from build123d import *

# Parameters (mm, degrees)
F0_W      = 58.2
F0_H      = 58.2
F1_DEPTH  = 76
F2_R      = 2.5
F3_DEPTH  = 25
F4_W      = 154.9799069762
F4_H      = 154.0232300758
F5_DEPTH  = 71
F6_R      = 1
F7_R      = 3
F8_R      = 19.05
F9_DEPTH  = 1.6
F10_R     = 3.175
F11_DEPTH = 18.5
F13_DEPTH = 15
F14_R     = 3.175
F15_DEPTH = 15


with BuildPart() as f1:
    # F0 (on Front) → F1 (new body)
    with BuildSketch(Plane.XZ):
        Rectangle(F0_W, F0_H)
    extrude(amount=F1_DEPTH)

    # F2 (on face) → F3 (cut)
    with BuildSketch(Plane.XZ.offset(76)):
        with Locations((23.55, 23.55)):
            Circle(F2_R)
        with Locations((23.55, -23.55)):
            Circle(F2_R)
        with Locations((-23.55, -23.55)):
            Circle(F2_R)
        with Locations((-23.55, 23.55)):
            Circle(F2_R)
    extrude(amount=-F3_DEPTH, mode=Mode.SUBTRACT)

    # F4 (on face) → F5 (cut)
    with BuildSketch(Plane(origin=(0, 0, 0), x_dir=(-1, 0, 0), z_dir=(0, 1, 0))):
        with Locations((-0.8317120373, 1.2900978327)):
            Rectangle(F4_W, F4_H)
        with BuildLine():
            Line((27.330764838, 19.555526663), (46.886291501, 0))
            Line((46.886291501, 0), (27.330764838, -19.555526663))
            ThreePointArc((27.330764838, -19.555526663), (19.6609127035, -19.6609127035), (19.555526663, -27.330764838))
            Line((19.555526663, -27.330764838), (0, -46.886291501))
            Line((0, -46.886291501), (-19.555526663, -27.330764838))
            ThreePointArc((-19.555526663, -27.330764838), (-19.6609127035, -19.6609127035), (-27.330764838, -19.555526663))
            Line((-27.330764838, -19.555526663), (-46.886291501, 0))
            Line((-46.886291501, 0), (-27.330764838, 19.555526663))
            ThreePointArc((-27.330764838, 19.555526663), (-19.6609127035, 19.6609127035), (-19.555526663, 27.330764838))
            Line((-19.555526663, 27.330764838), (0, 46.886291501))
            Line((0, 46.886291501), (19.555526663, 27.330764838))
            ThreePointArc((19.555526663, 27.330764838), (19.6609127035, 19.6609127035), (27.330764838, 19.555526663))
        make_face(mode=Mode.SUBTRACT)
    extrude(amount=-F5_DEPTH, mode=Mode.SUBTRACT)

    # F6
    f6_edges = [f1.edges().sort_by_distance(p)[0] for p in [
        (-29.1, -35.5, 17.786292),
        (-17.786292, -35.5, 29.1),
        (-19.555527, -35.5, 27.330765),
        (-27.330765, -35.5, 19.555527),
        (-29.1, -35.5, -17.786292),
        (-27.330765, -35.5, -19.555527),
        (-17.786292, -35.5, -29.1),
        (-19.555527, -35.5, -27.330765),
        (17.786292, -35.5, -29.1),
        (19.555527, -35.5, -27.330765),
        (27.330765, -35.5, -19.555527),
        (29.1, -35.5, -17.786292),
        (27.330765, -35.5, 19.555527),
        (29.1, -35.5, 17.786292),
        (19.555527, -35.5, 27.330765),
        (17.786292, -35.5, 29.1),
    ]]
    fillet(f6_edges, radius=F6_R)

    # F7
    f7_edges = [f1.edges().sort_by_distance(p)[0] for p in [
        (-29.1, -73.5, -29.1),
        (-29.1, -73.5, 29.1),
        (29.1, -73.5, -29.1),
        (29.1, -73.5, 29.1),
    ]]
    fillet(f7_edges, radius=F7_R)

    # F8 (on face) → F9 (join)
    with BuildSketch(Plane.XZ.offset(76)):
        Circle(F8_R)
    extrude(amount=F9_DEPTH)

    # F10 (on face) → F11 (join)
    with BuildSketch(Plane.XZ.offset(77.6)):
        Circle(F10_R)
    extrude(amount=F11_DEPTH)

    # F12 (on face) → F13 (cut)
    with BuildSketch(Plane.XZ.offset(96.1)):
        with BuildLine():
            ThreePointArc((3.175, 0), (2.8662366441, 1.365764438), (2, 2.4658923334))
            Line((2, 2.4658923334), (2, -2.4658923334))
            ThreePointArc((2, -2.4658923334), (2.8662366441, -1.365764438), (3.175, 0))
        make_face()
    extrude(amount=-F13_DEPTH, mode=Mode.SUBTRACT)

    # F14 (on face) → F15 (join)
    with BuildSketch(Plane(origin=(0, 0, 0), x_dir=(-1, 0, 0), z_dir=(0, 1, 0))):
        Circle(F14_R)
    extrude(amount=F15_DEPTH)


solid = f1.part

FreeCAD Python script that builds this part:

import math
import FreeCAD as App
import Part
import Sketcher
Q = App.Units.Quantity


def edges_at(feature, points):
    """Names of the edges that pass closest to the given points."""
    edges = feature.Shape.Edges
    near = lambda p: min(range(len(edges)), key=lambda i: edges[i].distToShape(Part.Vertex(*p))[0])
    return sorted({f"Edge{near(p) + 1}" for p in points})

doc = App.newDocument("Part")
body = doc.addObject("PartDesign::Body", "Body")

# Sketch on XZ plane
sketch1 = doc.addObject("Sketcher::SketchObject", "Sketch")
body.addObject(sketch1)
sketch1.AttachmentSupport = (doc.XZ_Plane, [""])
sketch1.MapMode = "FlatFace"
sketch1.addGeometry(Part.LineSegment(App.Vector(-29, 29, 0), App.Vector(-29, -29, 0)), False)
sketch1.addGeometry(Part.LineSegment(App.Vector(-29, -29, 0), App.Vector(29, -29, 0)), False)
sketch1.addGeometry(Part.LineSegment(App.Vector(29, -29, 0), App.Vector(29, 29, 0)), False)
sketch1.addGeometry(Part.LineSegment(App.Vector(29, 29, 0), App.Vector(-29, 29, 0)), False)
sketch1.addConstraint(Sketcher.Constraint("Coincident", 0, 2, 1, 1))
sketch1.addConstraint(Sketcher.Constraint("Coincident", 1, 2, 2, 1))
sketch1.addConstraint(Sketcher.Constraint("Coincident", 2, 2, 3, 1))
sketch1.addConstraint(Sketcher.Constraint("Coincident", 3, 2, 0, 1))
sketch1.addConstraint(Sketcher.Constraint("Vertical", 0))
sketch1.addConstraint(Sketcher.Constraint("Horizontal", 1))
sketch1.addConstraint(Sketcher.Constraint("Vertical", 2))
sketch1.addConstraint(Sketcher.Constraint("Horizontal", 3))
sketch1.addConstraint(Sketcher.Constraint("Symmetric", 0, 2, 2, 2, -1, 1))
sketch1.addConstraint(Sketcher.Constraint("Equal", 3, 0))
sketch1.addConstraint(Sketcher.Constraint("DistanceX", 1, 1, 1, 2, Q("58.2 mm")))
pad1 = doc.addObject("PartDesign::Pad", "Pad")
body.addObject(pad1)
pad1.Profile = sketch1
pad1.Length = 76

# Sketch on XZ plane
sketch2 = doc.addObject("Sketcher::SketchObject", "Sketch001")
body.addObject(sketch2)
sketch2.AttachmentSupport = (doc.XZ_Plane, [""])
sketch2.MapMode = "FlatFace"
sketch2.AttachmentOffset = App.Placement(App.Vector(0, 0, 76), App.Rotation())
sketch2.addGeometry(Part.Circle(App.Vector(23.6, 23.6, 0), App.Vector(0, 0, 1), 2.5), False)
sketch2.addGeometry(Part.Circle(App.Vector(23.6, -23.6, 0), App.Vector(0, 0, 1), 2.5), False)
sketch2.addGeometry(Part.Circle(App.Vector(-23.6, -23.6, 0), App.Vector(0, 0, 1), 2.5), False)
sketch2.addGeometry(Part.Circle(App.Vector(-23.6, 23.6, 0), App.Vector(0, 0, 1), 2.5), False)
sketch2.addConstraint(Sketcher.Constraint("Equal", 0, 1))
sketch2.addConstraint(Sketcher.Constraint("Equal", 1, 2))
sketch2.addConstraint(Sketcher.Constraint("Equal", 2, 3))
sketch2.addConstraint(Sketcher.Constraint("Symmetric", 0, 3, 2, 3, -1, 1))
sketch2.addConstraint(Sketcher.Constraint("Symmetric", 1, 3, 3, 3, -1, 1))
sketch2.addConstraint(Sketcher.Constraint("Symmetric", 1, 3, 2, 3, -2))
sketch2.addConstraint(Sketcher.Constraint("Diameter", 0, Q("5 mm")))
sketch2.addConstraint(Sketcher.Constraint("DistanceY", 1, 3, 0, 3, Q("47.1 mm")))
sketch2.addConstraint(Sketcher.Constraint("DistanceX", 2, 3, 1, 3, Q("47.1 mm")))
pocket1 = doc.addObject("PartDesign::Pocket", "Pocket")
body.addObject(pocket1)
pocket1.Profile = sketch2
pocket1.Length = 25

# Sketch on XZ plane
sketch3 = doc.addObject("Sketcher::SketchObject", "Sketch002")
body.addObject(sketch3)
sketch3.AttachmentSupport = (doc.XZ_Plane, [""])
sketch3.MapMode = "FlatFace"
sketch3.addGeometry(Part.LineSegment(App.Vector(78, 78, 0), App.Vector(78, -76, 0)), False)
sketch3.addGeometry(Part.LineSegment(App.Vector(78, -76, 0), App.Vector(-77, -76, 0)), False)
sketch3.addGeometry(Part.LineSegment(App.Vector(-77, -76, 0), App.Vector(-77, 78, 0)), False)
sketch3.addGeometry(Part.LineSegment(App.Vector(-77, 78, 0), App.Vector(78, 78, 0)), False)
sketch3.addGeometry(Part.ArcOfCircle(Part.Circle(App.Vector(-24, 24, 0), App.Vector(0, 0, 1), 6), math.radians(-133), math.radians(43)), False)
sketch3.addGeometry(Part.LineSegment(App.Vector(-27, 20, 0), App.Vector(-47, 0, 0)), False)
sketch3.addGeometry(Part.LineSegment(App.Vector(-47, 0, 0), App.Vector(-27, -20, 0)), False)
sketch3.addGeometry(Part.ArcOfCircle(Part.Circle(App.Vector(-24, -24, 0), App.Vector(0, 0, 1), 6), math.radians(-43), math.radians(133)), False)
sketch3.addGeometry(Part.LineSegment(App.Vector(-20, -27, 0), App.Vector(0, -47, 0)), False)
sketch3.addGeometry(Part.LineSegment(App.Vector(0, -47, 0), App.Vector(20, -27, 0)), False)
sketch3.addGeometry(Part.ArcOfCircle(Part.Circle(App.Vector(24, -24, 0), App.Vector(0, 0, 1), 6), math.radians(47), math.radians(223)), False)
sketch3.addGeometry(Part.LineSegment(App.Vector(27, -20, 0), App.Vector(47, 0, 0)), False)
sketch3.addGeometry(Part.LineSegment(App.Vector(47, 0, 0), App.Vector(27, 20, 0)), False)
sketch3.addGeometry(Part.ArcOfCircle(Part.Circle(App.Vector(24, 24, 0), App.Vector(0, 0, 1), 6), math.radians(137), math.radians(313)), False)
sketch3.addGeometry(Part.LineSegment(App.Vector(20, 27, 0), App.Vector(0, 47, 0)), False)
sketch3.addGeometry(Part.LineSegment(App.Vector(0, 47, 0), App.Vector(-20, 27, 0)), False)
sketch3.addConstraint(Sketcher.Constraint("Coincident", 0, 2, 1, 1))
sketch3.addConstraint(Sketcher.Constraint("Coincident", 1, 2, 2, 1))
sketch3.addConstraint(Sketcher.Constraint("Coincident", 2, 2, 3, 1))
sketch3.addConstraint(Sketcher.Constraint("Coincident", 3, 2, 0, 1))
sketch3.addConstraint(Sketcher.Constraint("Coincident", 4, 1, 5, 1))
sketch3.addConstraint(Sketcher.Constraint("Coincident", 5, 2, 6, 1))
sketch3.addConstraint(Sketcher.Constraint("Coincident", 6, 2, 7, 2))
sketch3.addConstraint(Sketcher.Constraint("Coincident", 7, 1, 8, 1))
sketch3.addConstraint(Sketcher.Constraint("Coincident", 8, 2, 9, 1))
sketch3.addConstraint(Sketcher.Constraint("Coincident", 9, 2, 10, 2))
sketch3.addConstraint(Sketcher.Constraint("Coincident", 10, 1, 11, 1))
sketch3.addConstraint(Sketcher.Constraint("Coincident", 11, 2, 12, 1))
sketch3.addConstraint(Sketcher.Constraint("Coincident", 12, 2, 13, 2))
sketch3.addConstraint(Sketcher.Constraint("Coincident", 13, 1, 14, 1))
sketch3.addConstraint(Sketcher.Constraint("Coincident", 14, 2, 15, 1))
sketch3.addConstraint(Sketcher.Constraint("Coincident", 15, 2, 4, 2))
sketch3.addConstraint(Sketcher.Constraint("Vertical", 0))
sketch3.addConstraint(Sketcher.Constraint("Horizontal", 1))
sketch3.addConstraint(Sketcher.Constraint("Vertical", 2))
sketch3.addConstraint(Sketcher.Constraint("Horizontal", 3))
sketch3.addConstraint(Sketcher.Constraint("Equal", 4, 7))
sketch3.addConstraint(Sketcher.Constraint("Equal", 7, 10))
sketch3.addConstraint(Sketcher.Constraint("Equal", 10, 13))
sketch3.addConstraint(Sketcher.Constraint("Symmetric", 4, 3, 10, 3, -1, 1))
sketch3.addConstraint(Sketcher.Constraint("Symmetric", 7, 3, 13, 3, -1, 1))
sketch3.addConstraint(Sketcher.Constraint("Symmetric", 5, 2, 11, 2, -1, 1))
sketch3.addConstraint(Sketcher.Constraint("Symmetric", 8, 2, 14, 2, -1, 1))
sketch3.addConstraint(Sketcher.Constraint("Symmetric", 7, 3, 10, 3, -2))
sketch3.addConstraint(Sketcher.Constraint("PointOnObject", 5, 2, -1))
sketch3.addConstraint(Sketcher.Constraint("PointOnObject", 8, 2, -2))
sketch3.addConstraint(Sketcher.Constraint("Perpendicular", 5, 6))
sketch3.addConstraint(Sketcher.Constraint("Parallel", 6, 8))
sketch3.addConstraint(Sketcher.Constraint("Perpendicular", 8, 9))
sketch3.addConstraint(Sketcher.Constraint("Parallel", 9, 11))
sketch3.addConstraint(Sketcher.Constraint("Perpendicular", 11, 12))
sketch3.addConstraint(Sketcher.Constraint("Parallel", 12, 14))
sketch3.addConstraint(Sketcher.Constraint("Perpendicular", 14, 15))
sketch3.addConstraint(Sketcher.Constraint("Horizontal", 7, 1, 9, 2))
sketch3.addConstraint(Sketcher.Constraint("Equal", 6, 8))
sketch3.addConstraint(Sketcher.Constraint("Radius", 4, Q("5.5 mm")))
sketch3.addConstraint(Sketcher.Constraint("DistanceY", 7, 3, 4, 3, Q("47.1 mm")))
sketch3.addConstraint(Sketcher.Constraint("DistanceX", 7, 3, 10, 3, Q("47.1 mm")))
sketch3.addConstraint(Sketcher.Constraint("DistanceY", 0, 2, 0, 1, Q("154.02323 mm")))
sketch3.addConstraint(Sketcher.Constraint("Distance", 5, Q("27.655691 mm")))
sketch3.addConstraint(Sketcher.Constraint("DistanceX", 1, 2, 1, 1, Q("154.979907 mm")))
sketch3.addConstraint(Sketcher.Constraint("DistanceX", 1, 2, -1, 1, Q("76.658241 mm")))
sketch3.addConstraint(Sketcher.Constraint("DistanceY", 0, 2, -1, 1, Q("75.721517 mm")))
pocket2 = doc.addObject("PartDesign::Pocket", "Pocket001")
body.addObject(pocket2)
pocket2.Profile = sketch3
pocket2.Length = 71
pocket2.Reversed = True
doc.recompute()

fillet = doc.addObject("PartDesign::Fillet", "Fillet")
body.addObject(fillet)
fillet.Base = (pocket2, edges_at(pocket2, [
    (-29.1, -35.5, 17.786),
    (-17.786, -35.5, 29.1),
    (-19.556, -35.5, 27.331),
    (-27.331, -35.5, 19.556),
    (-29.1, -35.5, -17.786),
    (-27.331, -35.5, -19.556),
    (-17.786, -35.5, -29.1),
    (-19.556, -35.5, -27.331),
    (17.786, -35.5, -29.1),
    (19.556, -35.5, -27.331),
    (27.331, -35.5, -19.556),
    (29.1, -35.5, -17.786),
    (27.331, -35.5, 19.556),
    (29.1, -35.5, 17.786),
    (19.556, -35.5, 27.331),
    (17.786, -35.5, 29.1),
]))
fillet.Radius = 1
doc.recompute()

fillet2 = doc.addObject("PartDesign::Fillet", "Fillet001")
body.addObject(fillet2)
fillet2.Base = (fillet, edges_at(fillet, [
    (-29.1, -73.5, -29.1),
    (-29.1, -73.5, 29.1),
    (29.1, -73.5, -29.1),
    (29.1, -73.5, 29.1),
]))
fillet2.Radius = 3

# Sketch on XZ plane
sketch4 = doc.addObject("Sketcher::SketchObject", "Sketch003")
body.addObject(sketch4)
sketch4.AttachmentSupport = (doc.XZ_Plane, [""])
sketch4.MapMode = "FlatFace"
sketch4.AttachmentOffset = App.Placement(App.Vector(0, 0, 76), App.Rotation())
sketch4.addGeometry(Part.Circle(App.Vector(0, 0, 0), App.Vector(0, 0, 1), 19), False)
sketch4.addConstraint(Sketcher.Constraint("Coincident", 0, 3, -1, 1))
sketch4.addConstraint(Sketcher.Constraint("Diameter", 0, Q("38.1 mm")))
pad2 = doc.addObject("PartDesign::Pad", "Pad001")
body.addObject(pad2)
pad2.Profile = sketch4
pad2.Length = 1.6

# Sketch on XZ plane
sketch5 = doc.addObject("Sketcher::SketchObject", "Sketch004")
body.addObject(sketch5)
sketch5.AttachmentSupport = (doc.XZ_Plane, [""])
sketch5.MapMode = "FlatFace"
sketch5.AttachmentOffset = App.Placement(App.Vector(0, 0, 77.6), App.Rotation())
sketch5.addGeometry(Part.Circle(App.Vector(0, 0, 0), App.Vector(0, 0, 1), 3.2), False)
sketch5.addConstraint(Sketcher.Constraint("Coincident", 0, 3, -1, 1))
sketch5.addConstraint(Sketcher.Constraint("Diameter", 0, Q("6.35 mm")))
pad3 = doc.addObject("PartDesign::Pad", "Pad002")
body.addObject(pad3)
pad3.Profile = sketch5
pad3.Length = 18.5

# Sketch on XZ plane
sketch6 = doc.addObject("Sketcher::SketchObject", "Sketch005")
body.addObject(sketch6)
sketch6.AttachmentSupport = (doc.XZ_Plane, [""])
sketch6.MapMode = "FlatFace"
sketch6.AttachmentOffset = App.Placement(App.Vector(0, 0, 96.1), App.Rotation())
sketch6.addGeometry(Part.ArcOfCircle(Part.Circle(App.Vector(0, 0, 0), App.Vector(0, 0, 1), 3.2), math.radians(0), math.radians(51)), False)
sketch6.addGeometry(Part.LineSegment(App.Vector(2, 2.5, 0), App.Vector(2, -2.5, 0)), False)
sketch6.addGeometry(Part.ArcOfCircle(Part.Circle(App.Vector(0, 0, 0), App.Vector(0, 0, 1), 3.2), math.radians(-51), math.radians(0)), False)
sketch6.addConstraint(Sketcher.Constraint("Coincident", 0, 2, 1, 1))
sketch6.addConstraint(Sketcher.Constraint("Coincident", 1, 2, 2, 1))
sketch6.addConstraint(Sketcher.Constraint("Tangent", 2, 2, 0, 1))
sketch6.addConstraint(Sketcher.Constraint("Vertical", 1))
sketch6.addConstraint(Sketcher.Constraint("Coincident", 0, 3, -1, 1))
sketch6.addConstraint(Sketcher.Constraint("Equal", 0, 2))
sketch6.addConstraint(Sketcher.Constraint("PointOnObject", 2, 2, -1))
sketch6.addConstraint(Sketcher.Constraint("DistanceX", -1, 1, 0, 2, Q("2 mm")))
sketch6.addConstraint(Sketcher.Constraint("Radius", 0, Q("3.175 mm")))
pocket3 = doc.addObject("PartDesign::Pocket", "Pocket002")
body.addObject(pocket3)
pocket3.Profile = sketch6
pocket3.Length = 15

# Sketch on XZ plane
sketch7 = doc.addObject("Sketcher::SketchObject", "Sketch006")
body.addObject(sketch7)
sketch7.AttachmentSupport = (doc.XZ_Plane, [""])
sketch7.MapMode = "FlatFace"
sketch7.addGeometry(Part.Circle(App.Vector(0, 0, 0), App.Vector(0, 0, 1), 3.2), False)
sketch7.addConstraint(Sketcher.Constraint("Coincident", 0, 3, -1, 1))
sketch7.addConstraint(Sketcher.Constraint("Diameter", 0, Q("6.35 mm")))
pad4 = doc.addObject("PartDesign::Pad", "Pad003")
body.addObject(pad4)
pad4.Profile = sketch7
pad4.Length = 15
pad4.Reversed = True

doc.recompute()
